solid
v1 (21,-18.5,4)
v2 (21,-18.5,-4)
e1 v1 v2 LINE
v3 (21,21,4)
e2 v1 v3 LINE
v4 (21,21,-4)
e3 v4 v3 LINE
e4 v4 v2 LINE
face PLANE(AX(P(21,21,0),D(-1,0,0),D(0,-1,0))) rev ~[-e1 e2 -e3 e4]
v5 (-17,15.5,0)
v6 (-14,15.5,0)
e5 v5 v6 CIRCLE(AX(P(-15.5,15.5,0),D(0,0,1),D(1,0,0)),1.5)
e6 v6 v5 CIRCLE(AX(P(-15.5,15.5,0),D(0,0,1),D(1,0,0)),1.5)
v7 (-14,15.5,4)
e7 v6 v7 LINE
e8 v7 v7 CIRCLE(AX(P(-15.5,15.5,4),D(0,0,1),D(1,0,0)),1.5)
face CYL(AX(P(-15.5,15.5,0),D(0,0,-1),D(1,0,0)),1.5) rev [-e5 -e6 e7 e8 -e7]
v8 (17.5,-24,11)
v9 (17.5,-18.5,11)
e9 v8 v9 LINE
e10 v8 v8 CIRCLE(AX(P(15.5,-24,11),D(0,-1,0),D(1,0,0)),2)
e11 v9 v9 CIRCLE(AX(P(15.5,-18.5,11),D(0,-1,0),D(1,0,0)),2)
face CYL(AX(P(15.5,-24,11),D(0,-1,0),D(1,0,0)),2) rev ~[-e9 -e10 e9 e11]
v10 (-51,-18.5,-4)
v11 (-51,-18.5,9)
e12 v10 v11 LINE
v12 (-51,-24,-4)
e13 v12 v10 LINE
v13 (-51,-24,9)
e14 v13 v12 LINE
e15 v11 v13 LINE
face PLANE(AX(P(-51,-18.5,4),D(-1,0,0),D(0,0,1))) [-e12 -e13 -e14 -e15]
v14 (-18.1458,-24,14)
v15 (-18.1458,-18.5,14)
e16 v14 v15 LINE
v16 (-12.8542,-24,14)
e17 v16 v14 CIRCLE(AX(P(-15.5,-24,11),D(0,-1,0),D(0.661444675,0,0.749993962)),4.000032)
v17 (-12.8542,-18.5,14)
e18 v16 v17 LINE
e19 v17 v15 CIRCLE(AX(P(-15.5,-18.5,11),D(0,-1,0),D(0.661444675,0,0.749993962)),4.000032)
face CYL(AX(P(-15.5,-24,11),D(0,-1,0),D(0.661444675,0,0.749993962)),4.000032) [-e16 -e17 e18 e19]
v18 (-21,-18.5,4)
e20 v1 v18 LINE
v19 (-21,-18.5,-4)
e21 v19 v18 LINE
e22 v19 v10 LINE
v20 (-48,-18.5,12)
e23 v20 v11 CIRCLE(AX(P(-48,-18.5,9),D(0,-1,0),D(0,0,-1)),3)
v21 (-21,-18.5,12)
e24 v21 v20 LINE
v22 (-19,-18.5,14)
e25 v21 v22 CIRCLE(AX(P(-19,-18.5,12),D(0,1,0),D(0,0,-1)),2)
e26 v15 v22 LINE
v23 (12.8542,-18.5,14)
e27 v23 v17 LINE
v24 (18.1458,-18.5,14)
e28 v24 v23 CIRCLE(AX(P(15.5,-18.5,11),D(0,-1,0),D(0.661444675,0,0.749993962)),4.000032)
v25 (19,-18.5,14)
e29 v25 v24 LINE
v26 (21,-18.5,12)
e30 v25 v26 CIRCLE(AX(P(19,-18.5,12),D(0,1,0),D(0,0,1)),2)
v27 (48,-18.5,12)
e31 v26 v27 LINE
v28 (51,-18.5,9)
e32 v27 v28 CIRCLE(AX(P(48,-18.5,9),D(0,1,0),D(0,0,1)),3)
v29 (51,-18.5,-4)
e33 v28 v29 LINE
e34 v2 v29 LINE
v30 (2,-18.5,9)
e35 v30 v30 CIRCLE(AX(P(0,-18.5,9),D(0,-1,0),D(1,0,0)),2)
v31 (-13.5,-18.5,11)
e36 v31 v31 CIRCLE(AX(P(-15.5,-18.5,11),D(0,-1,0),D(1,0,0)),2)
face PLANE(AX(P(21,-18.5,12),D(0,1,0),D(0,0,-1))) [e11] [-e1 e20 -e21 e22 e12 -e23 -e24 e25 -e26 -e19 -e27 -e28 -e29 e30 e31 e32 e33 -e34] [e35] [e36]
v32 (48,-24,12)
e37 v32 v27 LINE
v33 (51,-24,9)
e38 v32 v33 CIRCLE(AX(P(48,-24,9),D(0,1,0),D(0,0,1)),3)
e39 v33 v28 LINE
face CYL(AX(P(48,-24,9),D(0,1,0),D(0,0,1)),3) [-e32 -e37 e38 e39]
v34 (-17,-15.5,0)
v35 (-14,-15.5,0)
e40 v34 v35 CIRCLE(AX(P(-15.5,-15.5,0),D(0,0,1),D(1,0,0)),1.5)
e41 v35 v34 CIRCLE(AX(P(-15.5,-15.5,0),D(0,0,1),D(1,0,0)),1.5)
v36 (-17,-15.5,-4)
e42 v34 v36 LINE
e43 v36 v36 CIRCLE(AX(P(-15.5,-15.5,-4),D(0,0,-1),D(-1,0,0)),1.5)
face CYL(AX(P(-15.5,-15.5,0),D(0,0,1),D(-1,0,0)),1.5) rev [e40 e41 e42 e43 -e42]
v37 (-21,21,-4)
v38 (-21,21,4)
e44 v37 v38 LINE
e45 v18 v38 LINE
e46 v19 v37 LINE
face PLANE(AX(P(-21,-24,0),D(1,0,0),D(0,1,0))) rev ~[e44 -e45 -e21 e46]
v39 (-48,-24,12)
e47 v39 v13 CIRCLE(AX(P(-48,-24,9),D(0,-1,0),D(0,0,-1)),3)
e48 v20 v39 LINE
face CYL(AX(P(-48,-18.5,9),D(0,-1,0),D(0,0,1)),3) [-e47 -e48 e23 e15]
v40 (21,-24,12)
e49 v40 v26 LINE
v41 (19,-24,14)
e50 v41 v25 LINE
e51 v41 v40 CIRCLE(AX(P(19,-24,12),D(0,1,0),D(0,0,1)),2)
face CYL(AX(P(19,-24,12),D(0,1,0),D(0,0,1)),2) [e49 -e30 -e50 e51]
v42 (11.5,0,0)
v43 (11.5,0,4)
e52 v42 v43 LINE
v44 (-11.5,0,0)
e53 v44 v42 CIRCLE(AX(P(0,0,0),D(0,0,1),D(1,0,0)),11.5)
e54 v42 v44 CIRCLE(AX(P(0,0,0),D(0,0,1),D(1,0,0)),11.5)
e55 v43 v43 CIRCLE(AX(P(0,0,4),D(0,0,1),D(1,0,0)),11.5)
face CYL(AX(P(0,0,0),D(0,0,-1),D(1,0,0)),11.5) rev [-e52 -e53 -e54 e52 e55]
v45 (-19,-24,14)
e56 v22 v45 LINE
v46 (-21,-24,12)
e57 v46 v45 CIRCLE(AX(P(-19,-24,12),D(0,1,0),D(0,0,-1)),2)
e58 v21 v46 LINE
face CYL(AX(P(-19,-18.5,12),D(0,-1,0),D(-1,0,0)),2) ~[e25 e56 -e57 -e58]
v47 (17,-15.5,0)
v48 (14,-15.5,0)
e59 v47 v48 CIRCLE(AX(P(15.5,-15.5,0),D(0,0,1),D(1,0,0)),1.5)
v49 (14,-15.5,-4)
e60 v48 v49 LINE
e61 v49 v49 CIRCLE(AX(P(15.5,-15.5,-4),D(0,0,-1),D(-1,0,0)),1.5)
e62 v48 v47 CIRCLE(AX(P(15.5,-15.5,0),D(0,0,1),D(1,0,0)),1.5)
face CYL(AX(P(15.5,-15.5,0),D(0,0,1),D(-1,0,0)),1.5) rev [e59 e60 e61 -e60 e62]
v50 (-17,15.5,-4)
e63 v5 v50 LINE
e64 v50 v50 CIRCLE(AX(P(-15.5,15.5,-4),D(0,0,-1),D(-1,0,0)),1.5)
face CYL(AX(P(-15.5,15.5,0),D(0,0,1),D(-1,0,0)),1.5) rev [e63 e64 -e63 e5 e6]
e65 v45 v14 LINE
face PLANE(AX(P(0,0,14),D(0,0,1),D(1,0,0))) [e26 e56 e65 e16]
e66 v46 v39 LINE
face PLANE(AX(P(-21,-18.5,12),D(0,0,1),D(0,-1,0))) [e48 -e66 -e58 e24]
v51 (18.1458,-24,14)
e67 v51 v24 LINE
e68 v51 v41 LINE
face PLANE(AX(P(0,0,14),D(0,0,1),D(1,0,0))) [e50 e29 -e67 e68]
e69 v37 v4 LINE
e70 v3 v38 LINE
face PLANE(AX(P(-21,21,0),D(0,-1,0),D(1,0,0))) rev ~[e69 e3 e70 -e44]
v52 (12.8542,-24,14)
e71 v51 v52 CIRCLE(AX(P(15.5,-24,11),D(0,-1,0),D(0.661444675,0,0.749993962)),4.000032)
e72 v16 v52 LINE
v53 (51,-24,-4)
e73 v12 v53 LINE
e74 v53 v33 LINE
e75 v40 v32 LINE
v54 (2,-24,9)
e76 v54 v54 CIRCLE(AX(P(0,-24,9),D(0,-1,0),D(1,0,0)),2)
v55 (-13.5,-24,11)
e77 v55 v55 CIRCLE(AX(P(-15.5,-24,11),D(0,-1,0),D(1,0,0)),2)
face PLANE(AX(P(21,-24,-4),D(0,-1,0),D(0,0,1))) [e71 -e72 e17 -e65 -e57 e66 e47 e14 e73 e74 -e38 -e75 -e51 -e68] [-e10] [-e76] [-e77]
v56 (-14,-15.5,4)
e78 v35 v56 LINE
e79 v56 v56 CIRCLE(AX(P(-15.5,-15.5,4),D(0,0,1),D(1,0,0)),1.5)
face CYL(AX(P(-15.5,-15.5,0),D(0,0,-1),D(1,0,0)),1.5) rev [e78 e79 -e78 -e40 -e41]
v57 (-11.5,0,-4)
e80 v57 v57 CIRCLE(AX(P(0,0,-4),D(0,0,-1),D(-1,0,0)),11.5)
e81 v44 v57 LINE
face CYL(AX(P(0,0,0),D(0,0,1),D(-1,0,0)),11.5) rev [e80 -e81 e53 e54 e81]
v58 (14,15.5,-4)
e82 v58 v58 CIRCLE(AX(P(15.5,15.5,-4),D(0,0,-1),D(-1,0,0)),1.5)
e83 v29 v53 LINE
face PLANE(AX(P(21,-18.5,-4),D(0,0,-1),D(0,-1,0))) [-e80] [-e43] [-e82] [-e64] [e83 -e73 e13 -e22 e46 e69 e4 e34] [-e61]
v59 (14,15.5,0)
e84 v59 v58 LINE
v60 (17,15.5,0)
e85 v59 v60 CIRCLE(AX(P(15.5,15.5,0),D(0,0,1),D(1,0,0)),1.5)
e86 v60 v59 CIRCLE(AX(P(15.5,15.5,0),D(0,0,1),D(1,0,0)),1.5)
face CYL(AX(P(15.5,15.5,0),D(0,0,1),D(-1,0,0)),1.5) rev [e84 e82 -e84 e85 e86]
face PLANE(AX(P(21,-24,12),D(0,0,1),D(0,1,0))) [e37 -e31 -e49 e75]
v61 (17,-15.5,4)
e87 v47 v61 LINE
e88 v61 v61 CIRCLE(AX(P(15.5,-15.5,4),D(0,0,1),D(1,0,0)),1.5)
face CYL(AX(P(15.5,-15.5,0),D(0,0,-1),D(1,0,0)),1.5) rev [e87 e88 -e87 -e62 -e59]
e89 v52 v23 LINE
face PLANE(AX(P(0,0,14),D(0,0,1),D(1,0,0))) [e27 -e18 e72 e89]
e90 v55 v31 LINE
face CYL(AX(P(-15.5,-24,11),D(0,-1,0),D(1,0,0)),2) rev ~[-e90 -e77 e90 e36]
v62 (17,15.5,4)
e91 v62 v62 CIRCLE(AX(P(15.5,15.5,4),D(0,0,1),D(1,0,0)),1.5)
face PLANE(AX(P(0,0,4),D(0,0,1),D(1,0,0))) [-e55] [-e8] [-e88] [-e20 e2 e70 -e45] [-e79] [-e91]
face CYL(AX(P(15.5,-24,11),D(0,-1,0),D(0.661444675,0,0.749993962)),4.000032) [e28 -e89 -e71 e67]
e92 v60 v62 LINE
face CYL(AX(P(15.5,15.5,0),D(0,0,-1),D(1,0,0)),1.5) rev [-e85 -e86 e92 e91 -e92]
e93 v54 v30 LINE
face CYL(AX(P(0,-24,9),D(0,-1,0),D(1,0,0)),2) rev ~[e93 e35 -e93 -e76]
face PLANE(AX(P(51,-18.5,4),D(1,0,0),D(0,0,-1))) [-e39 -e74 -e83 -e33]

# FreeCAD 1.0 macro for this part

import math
import FreeCAD as App
import Part
import Sketcher
from FreeCAD import Vector


def edges_at(feature, points):
    """Names of the edges that pass closest to the given points."""
    edges = feature.Shape.Edges
    near = lambda p: min(range(len(edges)), key=lambda i: edges[i].distToShape(Part.Vertex(*p))[0])
    return sorted({f"Edge{near(p) + 1}" for p in points})

doc = App.newDocument("Part")
body = doc.addObject("PartDesign::Body", "Body")

# Sketch on XY plane
sketch1 = doc.addObject("Sketcher::SketchObject", "Sketch")
body.addObject(sketch1)
sketch1.AttachmentSupport = (doc.XY_Plane, [""])
sketch1.MapMode = "FlatFace"
sketch1.addGeometry(Part.LineSegment(Vector(-21, 21, 0), Vector(-21, -24, 0)), False)
sketch1.addGeometry(Part.LineSegment(Vector(-21, -24, 0), Vector(21, -24, 0)), False)
sketch1.addGeometry(Part.LineSegment(Vector(21, -24, 0), Vector(21, 21, 0)), False)
sketch1.addGeometry(Part.LineSegment(Vector(21, 21, 0), Vector(-21, 21, 0)), False)
sketch1.addGeometry(Part.Circle(Vector(-15.5, -15.5, 0), Vector(0, 0, 1), 1.5), False)
sketch1.addGeometry(Part.Circle(Vector(15.5, -15.5, 0), Vector(0, 0, 1), 1.5), False)
sketch1.addGeometry(Part.Circle(Vector(-15.5, 15.5, 0), Vector(0, 0, 1), 1.5), False)
sketch1.addGeometry(Part.Circle(Vector(0, 0, 0), Vector(0, 0, 1), 11.5), False)
sketch1.addGeometry(Part.Circle(Vector(15.5, 15.5, 0), Vector(0, 0, 1), 1.5), False)
sketch1.addConstraint(Sketcher.Constraint("Coincident", 0, 2, 1, 1))
sketch1.addConstraint(Sketcher.Constraint("Coincident", 1, 2, 2, 1))
sketch1.addConstraint(Sketcher.Constraint("Coincident", 2, 2, 3, 1))
sketch1.addConstraint(Sketcher.Constraint("Coincident", 3, 2, 0, 1))
sketch1.addConstraint(Sketcher.Constraint("Vertical", 0))
sketch1.addConstraint(Sketcher.Constraint("Horizontal", 1))
sketch1.addConstraint(Sketcher.Constraint("Vertical", 2))
sketch1.addConstraint(Sketcher.Constraint("Horizontal", 3))
sketch1.addConstraint(Sketcher.Constraint("Coincident", 7, 3, -1, 1))
sketch1.addConstraint(Sketcher.Constraint("Equal", 4, 5))
sketch1.addConstraint(Sketcher.Constraint("Equal", 5, 6))
sketch1.addConstraint(Sketcher.Constraint("Equal", 6, 8))
sketch1.addConstraint(Sketcher.Constraint("Symmetric", 5, 3, 6, 3, -1, 1))
sketch1.addConstraint(Sketcher.Constraint("Symmetric", 4, 3, 8, 3, -1, 1))
sketch1.addConstraint(Sketcher.Constraint("Symmetric", 4, 3, 5, 3, -2))
sketch1.addConstraint(Sketcher.Constraint("Diameter", 4, 3.0))
sketch1.addConstraint(Sketcher.Constraint("Diameter", 7, 23.0))
sketch1.addConstraint(Sketcher.Constraint("DistanceY", 0, 2, -1, 1, 24.0))
sketch1.addConstraint(Sketcher.Constraint("DistanceY", 0, 2, 4, 3, 8.5))
sketch1.addConstraint(Sketcher.Constraint("DistanceX", 1, 1, 1, 2, 42.0))
sketch1.addConstraint(Sketcher.Constraint("DistanceY", 0, 2, 0, 1, 45.0))
sketch1.addConstraint(Sketcher.Constraint("DistanceX", 0, 2, -1, 1, 21.0))
sketch1.addConstraint(Sketcher.Constraint("DistanceX", 4, 3, 5, 3, 31.0))
pad1 = doc.addObject("PartDesign::Pad", "Pad")
body.addObject(pad1)
pad1.Profile = sketch1
pad1.Length = 4

# Sketch on XY plane
sketch2 = doc.addObject("Sketcher::SketchObject", "Sketch001")
body.addObject(sketch2)
sketch2.AttachmentSupport = (doc.XY_Plane, [""])
sketch2.MapMode = "FlatFace"
sketch2.AttachmentOffset = App.Placement(Vector(0, 0, 4), App.Rotation())
sketch2.addGeometry(Part.LineSegment(Vector(-21, -18.5, 0), Vector(-21, -24, 0)), False)
sketch2.addGeometry(Part.LineSegment(Vector(-21, -24, 0), Vector(21, -24, 0)), False)
sketch2.addGeometry(Part.LineSegment(Vector(21, -24, 0), Vector(21, -18.5, 0)), False)
sketch2.addGeometry(Part.LineSegment(Vector(21, -18.5, 0), Vector(-21, -18.5, 0)), False)
sketch2.addConstraint(Sketcher.Constraint("Coincident", 0, 2, 1, 1))
sketch2.addConstraint(Sketcher.Constraint("Coincident", 1, 2, 2, 1))
sketch2.addConstraint(Sketcher.Constraint("Coincident", 2, 2, 3, 1))
sketch2.addConstraint(Sketcher.Constraint("Coincident", 3, 2, 0, 1))
sketch2.addConstraint(Sketcher.Constraint("Vertical", 0))
sketch2.addConstraint(Sketcher.Constraint("Horizontal", 1))
sketch2.addConstraint(Sketcher.Constraint("Vertical", 2))
sketch2.addConstraint(Sketcher.Constraint("Horizontal", 3))
sketch2.addConstraint(Sketcher.Constraint("DistanceY", 0, 2, 0, 1, 5.5))
sketch2.addConstraint(Sketcher.Constraint("DistanceX", 1, 1, 1, 2, 42.0))
sketch2.addConstraint(Sketcher.Constraint("DistanceX", 0, 2, -1, 1, 21.0))
sketch2.addConstraint(Sketcher.Constraint("DistanceY", 0, 2, -1, 1, 24.0))
pad2 = doc.addObject("PartDesign::Pad", "Pad001")
body.addObject(pad2)
pad2.Profile = sketch2
pad2.Length = 10

# Sketch on XZ plane
sketch3 = doc.addObject("Sketcher::SketchObject", "Sketch002")
body.addObject(sketch3)
sketch3.AttachmentSupport = (doc.XZ_Plane, [""])
sketch3.MapMode = "FlatFace"
sketch3.AttachmentOffset = App.Placement(Vector(0, 0, 24), App.Rotation())
sketch3.addGeometry(Part.LineSegment(Vector(-18.1458, 14, 0), Vector(-12.8542, 14, 0)), False)
sketch3.addGeometry(Part.ArcOfCircle(Part.Circle(Vector(-15.5, 11, 0), Vector(0, 0, 1), 4.000032), math.radians(48.589855), math.radians(131.410145)), False)
sketch3.addGeometry(Part.ArcOfCircle(Part.Circle(Vector(15.5, 11, 0), Vector(0, 0, 1), 4.000032), math.radians(48.589855), math.radians(131.410145)), False)
sketch3.addGeometry(Part.LineSegment(Vector(12.8542, 14, 0), Vector(18.1458, 14, 0)), False)
sketch3.addConstraint(Sketcher.Constraint("Coincident", 0, 1, 1, 2))
sketch3.addConstraint(Sketcher.Constraint("Coincident", 1, 1, 0, 2))
sketch3.addConstraint(Sketcher.Constraint("Coincident", 2, 1, 3, 2))
sketch3.addConstraint(Sketcher.Constraint("Coincident", 3, 1, 2, 2))
sketch3.addConstraint(Sketcher.Constraint("Horizontal", 0))
sketch3.addConstraint(Sketcher.Constraint("Horizontal", 3))
sketch3.addConstraint(Sketcher.Constraint("Equal", 1, 2))
sketch3.addConstraint(Sketcher.Constraint("Symmetric", 1, 3, 2, 3, -2))
sketch3.addConstraint(Sketcher.Constraint("Horizontal", 1, 1, 2, 1))
sketch3.addConstraint(Sketcher.Constraint("Radius", 1, 4.0))
sketch3.addConstraint(Sketcher.Constraint("DistanceY", -1, 1, 1, 3, 11.0))
sketch3.addConstraint(Sketcher.Constraint("DistanceY", -1, 1, 0, 1, 14.0))
sketch3.addConstraint(Sketcher.Constraint("DistanceX", 1, 3, 2, 3, 31.0))
pad3 = doc.addObject("PartDesign::Pad", "Pad002")
body.addObject(pad3)
pad3.Profile = sketch3
pad3.Length = 5.5
pad3.Reversed = True
doc.recompute()

fillet = doc.addObject("PartDesign::Fillet", "Fillet")
body.addObject(fillet)
fillet.Base = (pad3, edges_at(pad3, [(-21, -21.25, 14), (21, -21.25, 14)]))
fillet.Radius = 2

# Sketch on XZ plane
sketch4 = doc.addObject("Sketcher::SketchObject", "Sketch003")
body.addObject(sketch4)
sketch4.AttachmentSupport = (doc.XZ_Plane, [""])
sketch4.MapMode = "FlatFace"
sketch4.AttachmentOffset = App.Placement(Vector(0, 0, 24), App.Rotation())
sketch4.addGeometry(Part.Circle(Vector(-15.5, 11, 0), Vector(0, 0, 1), 2), False)
sketch4.addGeometry(Part.Circle(Vector(15.5, 11, 0), Vector(0, 0, 1), 2), False)
sketch4.addGeometry(Part.Circle(Vector(0, 9, 0), Vector(0, 0, 1), 2), False)
sketch4.addConstraint(Sketcher.Constraint("Equal", 0, 1))
sketch4.addConstraint(Sketcher.Constraint("Equal", 1, 2))
sketch4.addConstraint(Sketcher.Constraint("Symmetric", 0, 3, 1, 3, -2))
sketch4.addConstraint(Sketcher.Constraint("PointOnObject", 2, 3, -2))
sketch4.addConstraint(Sketcher.Constraint("Diameter", 0, 4.0))
sketch4.addConstraint(Sketcher.Constraint("DistanceY", -1, 1, 0, 3, 11.0))
sketch4.addConstraint(Sketcher.Constraint("DistanceY", -1, 1, 2, 3, 9.0))
sketch4.addConstraint(Sketcher.Constraint("DistanceX", 0, 3, 1, 3, 31.0))
pocket1 = doc.addObject("PartDesign::Pocket", "Pocket")
body.addObject(pocket1)
pocket1.Profile = sketch4
pocket1.Length = 5.5

# Sketch on XY plane
sketch5 = doc.addObject("Sketcher::SketchObject", "Sketch004")
body.addObject(sketch5)
sketch5.AttachmentSupport = (doc.XY_Plane, [""])
sketch5.MapMode = "FlatFace"
sketch5.addGeometry(Part.LineSegment(Vector(21, 21, 0), Vector(21, -24, 0)), False)
sketch5.addGeometry(Part.LineSegment(Vector(21, -24, 0), Vector(-21, -24, 0)), False)
sketch5.addGeometry(Part.LineSegment(Vector(-21, -24, 0), Vector(-21, 21, 0)), False)
sketch5.addGeometry(Part.LineSegment(Vector(-21, 21, 0), Vector(21, 21, 0)), False)
sketch5.addGeometry(Part.Circle(Vector(15.5, -15.5, 0), Vector(0, 0, 1), 1.5), False)
sketch5.addGeometry(Part.Circle(Vector(-15.5, -15.5, 0), Vector(0, 0, 1), 1.5), False)
sketch5.addGeometry(Part.Circle(Vector(15.5, 15.5, 0), Vector(0, 0, 1), 1.5), False)
sketch5.addGeometry(Part.Circle(Vector(0, 0, 0), Vector(0, 0, 1), 11.5), False)
sketch5.addGeometry(Part.Circle(Vector(-15.5, 15.5, 0), Vector(0, 0, 1), 1.5), False)
sketch5.addConstraint(Sketcher.Constraint("Coincident", 0, 2, 1, 1))
sketch5.addConstraint(Sketcher.Constraint("Coincident", 1, 2, 2, 1))
sketch5.addConstraint(Sketcher.Constraint("Coincident", 2, 2, 3, 1))
sketch5.addConstraint(Sketcher.Constraint("Coincident", 3, 2, 0, 1))
sketch5.addConstraint(Sketcher.Constraint("Vertical", 0))
sketch5.addConstraint(Sketcher.Constraint("Horizontal", 1))
sketch5.addConstraint(Sketcher.Constraint("Vertical", 2))
sketch5.addConstraint(Sketcher.Constraint("Horizontal", 3))
sketch5.addConstraint(Sketcher.Constraint("Coincident", 7, 3, -1, 1))
sketch5.addConstraint(Sketcher.Constraint("Equal", 4, 5))
sketch5.addConstraint(Sketcher.Constraint("Equal", 5, 6))
sketch5.addConstraint(Sketcher.Constraint("Equal", 6, 8))
sketch5.addConstraint(Sketcher.Constraint("Symmetric", 5, 3, 6, 3, -1, 1))
sketch5.addConstraint(Sketcher.Constraint("Symmetric", 4, 3, 8, 3, -1, 1))
sketch5.addConstraint(Sketcher.Constraint("Symmetric", 4, 3, 5, 3, -2))
sketch5.addConstraint(Sketcher.Constraint("Diameter", 4, 3.0))
sketch5.addConstraint(Sketcher.Constraint("Diameter", 7, 23.0))
sketch5.addConstraint(Sketcher.Constraint("DistanceX", 1, 2, 1, 1, 42.0))
sketch5.addConstraint(Sketcher.Constraint("DistanceY", 0, 2, 0, 1, 45.0))
sketch5.addConstraint(Sketcher.Constraint("DistanceX", -1, 1, 0, 2, 21.0))
sketch5.addConstraint(Sketcher.Constraint("DistanceY", 0, 2, -1, 1, 24.0))
sketch5.addConstraint(Sketcher.Constraint("DistanceX", 5, 3, 4, 3, 31.0))
sketch5.addConstraint(Sketcher.Constraint("DistanceY", 4, 3, 6, 3, 31.0))
pad4 = doc.addObject("PartDesign::Pad", "Pad003")
body.addObject(pad4)
pad4.Profile = sketch5
pad4.Length = 4
pad4.Reversed = True

# Sketch on YZ plane
sketch6 = doc.addObject("Sketcher::SketchObject", "Sketch005")
body.addObject(sketch6)
sketch6.AttachmentSupport = (doc.YZ_Plane, [""])
sketch6.MapMode = "FlatFace"
sketch6.AttachmentOffset = App.Placement(Vector(0, 0, -21), App.Rotation())
sketch6.addGeometry(Part.LineSegment(Vector(-18.5, -4, 0), Vector(-24, -4, 0)), False)
sketch6.addGeometry(Part.LineSegment(Vector(-24, -4, 0), Vector(-24, 12, 0)), False)
sketch6.addGeometry(Part.LineSegment(Vector(-24, 12, 0), Vector(-18.5, 12, 0)), False)
sketch6.addGeometry(Part.LineSegment(Vector(-18.5, 12, 0), Vector(-18.5, -4, 0)), False)
sketch6.addConstraint(Sketcher.Constraint("Coincident", 0, 2, 1, 1))
sketch6.addConstraint(Sketcher.Constraint("Coincident", 1, 2, 2, 1))
sketch6.addConstraint(Sketcher.Constraint("Coincident", 2, 2, 3, 1))
sketch6.addConstraint(Sketcher.Constraint("Coincident", 3, 2, 0, 1))
sketch6.addConstraint(Sketcher.Constraint("Horizontal", 0))
sketch6.addConstraint(Sketcher.Constraint("Vertical", 1))
sketch6.addConstraint(Sketcher.Constraint("Horizontal", 2))
sketch6.addConstraint(Sketcher.Constraint("Vertical", 3))
sketch6.addConstraint(Sketcher.Constraint("DistanceY", 1, 1, 1, 2, 16.0))
sketch6.addConstraint(Sketcher.Constraint("DistanceX", 0, 2, 0, 1, 5.5))
sketch6.addConstraint(Sketcher.Constraint("DistanceX", 0, 2, -1, 1, 24.0))
sketch6.addConstraint(Sketcher.Constraint("DistanceY", 0, 2, -1, 1, 4.0))
pad5 = doc.addObject("PartDesign::Pad", "Pad004")
body.addObject(pad5)
pad5.Profile = sketch6
pad5.Length = 30
pad5.Reversed = True

# Sketch on YZ plane
sketch7 = doc.addObject("Sketcher::SketchObject", "Sketch006")
body.addObject(sketch7)
sketch7.AttachmentSupport = (doc.YZ_Plane, [""])
sketch7.MapMode = "FlatFace"
sketch7.AttachmentOffset = App.Placement(Vector(0, 0, 21), App.Rotation())
sketch7.addGeometry(Part.LineSegment(Vector(-18.5, 12, 0), Vector(-24, 12, 0)), False)
sketch7.addGeometry(Part.LineSegment(Vector(-24, 12, 0), Vector(-24, -4, 0)), False)
sketch7.addGeometry(Part.LineSegment(Vector(-24, -4, 0), Vector(-18.5, -4, 0)), False)
sketch7.addGeometry(Part.LineSegment(Vector(-18.5, -4, 0), Vector(-18.5, 12, 0)), False)
sketch7.addConstraint(Sketcher.Constraint("Coincident", 0, 2, 1, 1))
sketch7.addConstraint(Sketcher.Constraint("Coincident", 1, 2, 2, 1))
sketch7.addConstraint(Sketcher.Constraint("Coincident", 2, 2, 3, 1))
sketch7.addConstraint(Sketcher.Constraint("Coincident", 3, 2, 0, 1))
sketch7.addConstraint(Sketcher.Constraint("Horizontal", 0))
sketch7.addConstraint(Sketcher.Constraint("Vertical", 1))
sketch7.addConstraint(Sketcher.Constraint("Horizontal", 2))
sketch7.addConstraint(Sketcher.Constraint("Vertical", 3))
sketch7.addConstraint(Sketcher.Constraint("DistanceY", 1, 2, 1, 1, 16.0))
sketch7.addConstraint(Sketcher.Constraint("DistanceX", 0, 2, 0, 1, 5.5))
sketch7.addConstraint(Sketcher.Constraint("DistanceX", 0, 2, -1, 1, 24.0))
sketch7.addConstraint(Sketcher.Constraint("DistanceY", -1, 1, 0, 2, 12.0))
pad6 = doc.addObject("PartDesign::Pad", "Pad005")
body.addObject(pad6)
pad6.Profile = sketch7
pad6.Length = 30
doc.recompute()

fillet2 = doc.addObject("PartDesign::Fillet", "Fillet001")
body.addObject(fillet2)
fillet2.Base = (pad6, edges_at(pad6, [(51, -21.25, 12), (-51, -21.25, 12)]))
fillet2.Radius = 3

doc.recompute()
